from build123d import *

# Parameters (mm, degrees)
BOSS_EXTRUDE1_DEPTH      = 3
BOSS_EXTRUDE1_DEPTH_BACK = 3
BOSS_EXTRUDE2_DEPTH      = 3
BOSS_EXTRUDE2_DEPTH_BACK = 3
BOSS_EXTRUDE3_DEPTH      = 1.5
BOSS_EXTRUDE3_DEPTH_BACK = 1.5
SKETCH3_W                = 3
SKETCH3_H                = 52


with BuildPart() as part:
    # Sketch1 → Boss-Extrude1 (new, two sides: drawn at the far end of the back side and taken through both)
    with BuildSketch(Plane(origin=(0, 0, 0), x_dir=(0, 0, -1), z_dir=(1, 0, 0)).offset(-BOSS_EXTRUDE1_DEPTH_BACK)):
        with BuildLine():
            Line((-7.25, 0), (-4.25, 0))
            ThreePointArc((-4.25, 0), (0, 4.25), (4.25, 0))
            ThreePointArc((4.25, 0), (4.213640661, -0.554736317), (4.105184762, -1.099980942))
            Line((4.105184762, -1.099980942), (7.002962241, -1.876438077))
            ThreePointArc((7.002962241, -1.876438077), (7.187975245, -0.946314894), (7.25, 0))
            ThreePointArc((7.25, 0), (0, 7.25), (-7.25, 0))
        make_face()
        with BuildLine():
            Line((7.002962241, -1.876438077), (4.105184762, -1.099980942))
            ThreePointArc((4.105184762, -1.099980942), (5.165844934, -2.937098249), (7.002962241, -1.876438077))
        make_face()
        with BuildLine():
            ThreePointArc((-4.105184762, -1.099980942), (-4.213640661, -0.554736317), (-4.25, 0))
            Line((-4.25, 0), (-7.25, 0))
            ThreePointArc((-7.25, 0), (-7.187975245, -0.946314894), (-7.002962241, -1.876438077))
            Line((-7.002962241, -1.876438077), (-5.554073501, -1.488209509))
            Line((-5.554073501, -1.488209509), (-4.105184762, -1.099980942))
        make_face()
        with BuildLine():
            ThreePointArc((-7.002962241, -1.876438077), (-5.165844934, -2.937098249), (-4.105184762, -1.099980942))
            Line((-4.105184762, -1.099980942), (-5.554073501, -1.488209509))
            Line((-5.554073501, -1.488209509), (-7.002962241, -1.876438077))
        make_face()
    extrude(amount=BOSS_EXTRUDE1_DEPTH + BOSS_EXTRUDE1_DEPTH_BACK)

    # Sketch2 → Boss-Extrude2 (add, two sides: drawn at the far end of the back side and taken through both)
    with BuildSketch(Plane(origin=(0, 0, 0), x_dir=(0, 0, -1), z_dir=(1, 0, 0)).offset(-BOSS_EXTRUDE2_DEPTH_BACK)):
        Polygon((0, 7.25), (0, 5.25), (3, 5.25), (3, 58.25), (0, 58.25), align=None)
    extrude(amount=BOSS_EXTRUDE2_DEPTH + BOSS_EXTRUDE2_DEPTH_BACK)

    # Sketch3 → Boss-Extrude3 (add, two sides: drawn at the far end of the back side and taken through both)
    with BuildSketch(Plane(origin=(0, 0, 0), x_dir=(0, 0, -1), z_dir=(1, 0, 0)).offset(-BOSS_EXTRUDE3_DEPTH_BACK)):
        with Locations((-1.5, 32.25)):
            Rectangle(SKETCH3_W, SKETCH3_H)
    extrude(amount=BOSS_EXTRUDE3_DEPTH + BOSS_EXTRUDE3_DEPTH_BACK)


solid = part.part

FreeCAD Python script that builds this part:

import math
import FreeCAD as App
import Part
import Sketcher
from FreeCAD import Vector
Q = App.Units.Quantity

doc = App.newDocument("Part")
body = doc.addObject("PartDesign::Body", "Body")

sketch1 = body.newObject("Sketcher::SketchObject", "Sketch")
sketch1.AttachmentSupport = (doc.getObject("YZ_Plane"), [""])
sketch1.MapMode = "FlatFace"
sketch1.addGeometry([
    Part.ArcOfCircle(Part.Circle(Vector(0, 0, 0), Vector(0, 0, 1), 4.25), math.radians(-90), math.radians(90)),
    Part.ArcOfCircle(Part.Circle(Vector(0, 0, 0), Vector(0, 0, 1), 4.25), math.radians(-105), math.radians(-90)),
    Part.ArcOfCircle(Part.Circle(Vector(-1.48821, -5.554074, 0), Vector(0, 0, 1), 1.5), math.radians(75), math.radians(255)),
    Part.ArcOfCircle(Part.Circle(Vector(0, 0, 0), Vector(0, 0, 1), 7.25), math.radians(-105), math.radians(-90)),
    Part.ArcOfCircle(Part.Circle(Vector(0, 0, 0), Vector(0, 0, 1), 7.25), math.radians(-90), math.radians(90)),
    Part.ArcOfCircle(Part.Circle(Vector(0, 0, 0), Vector(0, 0, 1), 7.25), math.radians(90), math.radians(105)),
    Part.ArcOfCircle(Part.Circle(Vector(-1.48821, 5.554074, 0), Vector(0, 0, 1), 1.5), math.radians(105), math.radians(285)),
    Part.ArcOfCircle(Part.Circle(Vector(0, 0, 0), Vector(0, 0, 1), 4.25), math.radians(90), math.radians(105)),
], False)
sketch1.addConstraint([
    Sketcher.Constraint("Tangent", 0, 1, 1, 2),
    Sketcher.Constraint("Tangent", 1, 1, 2, 1),
    Sketcher.Constraint("Tangent", 2, 2, 3, 1),
    Sketcher.Constraint("Tangent", 3, 2, 4, 1),
    Sketcher.Constraint("Tangent", 4, 2, 5, 1),
    Sketcher.Constraint("Tangent", 5, 2, 6, 1),
    Sketcher.Constraint("Tangent", 6, 2, 7, 2),
    Sketcher.Constraint("Tangent", 7, 1, 0, 2),
    Sketcher.Constraint("Coincident", 0, 3, -1, 1),
    Sketcher.Constraint("Coincident", 3, 3, -1, 1),
    Sketcher.Constraint("Equal", 0, 1),
    Sketcher.Constraint("Equal", 3, 4),
    Sketcher.Constraint("Equal", 4, 5),
    Sketcher.Constraint("Equal", 2, 6),
    Sketcher.Constraint("PointOnObject", 0, 1, -2),
    Sketcher.Constraint("PointOnObject", 3, 2, -2),
    Sketcher.Constraint("PointOnObject", 4, 2, -2),
    Sketcher.Constraint("PointOnObject", 7, 1, -2),
    Sketcher.Constraint("Vertical", 2, 3, 6, 3),
    Sketcher.Constraint("Radius", 2, Q("1.5 mm")),
    Sketcher.Constraint("Radius", 0, Q("4.25 mm")),
    Sketcher.Constraint("DistanceX", 2, 3, -1, 1, Q("1.48821 mm")),
])
pad1 = body.newObject("PartDesign::Pad", "Pad")
pad1.Profile = sketch1
pad1.Type = "TwoLengths"
pad1.Length = 3
pad1.Length2 = 3

sketch2 = body.newObject("Sketcher::SketchObject", "Sketch001")
sketch2.AttachmentSupport = (doc.getObject("YZ_Plane"), [""])
sketch2.MapMode = "FlatFace"
sketch2.addGeometry([
    Part.LineSegment(Vector(5.25, 0, 0), Vector(5.25, -3, 0)),
    Part.LineSegment(Vector(5.25, -3, 0), Vector(58.25, -3, 0)),
    Part.LineSegment(Vector(58.25, -3, 0), Vector(58.25, 0, 0)),
    Part.LineSegment(Vector(58.25, 0, 0), Vector(5.25, 0, 0)),
], False)
sketch2.addConstraint([
    Sketcher.Constraint("Coincident", 0, 2, 1, 1),
    Sketcher.Constraint("Coincident", 1, 2, 2, 1),
    Sketcher.Constraint("Coincident", 2, 2, 3, 1),
    Sketcher.Constraint("Coincident", 3, 2, 0, 1),
    Sketcher.Constraint("Vertical", 0),
    Sketcher.Constraint("Horizontal", 1),
    Sketcher.Constraint("Vertical", 2),
    Sketcher.Constraint("Horizontal", 3),
    Sketcher.Constraint("PointOnObject", 2, 2, -1),
    Sketcher.Constraint("DistanceX", 1, 1, 1, 2, Q("53 mm")),
    Sketcher.Constraint("DistanceY", 0, 2, 0, 1, Q("3 mm")),
    Sketcher.Constraint("DistanceX", -1, 1, 0, 2, Q("5.25 mm")),
])
pad2 = body.newObject("PartDesign::Pad", "Pad001")
pad2.Profile = sketch2
pad2.Type = "TwoLengths"
pad2.Length = 3
pad2.Length2 = 3

sketch3 = body.newObject("Sketcher::SketchObject", "Sketch002")
sketch3.AttachmentSupport = (doc.getObject("YZ_Plane"), [""])
sketch3.MapMode = "FlatFace"
sketch3.addGeometry([
    Part.LineSegment(Vector(58.25, 3, 0), Vector(6.25, 3, 0)),
    Part.LineSegment(Vector(6.25, 3, 0), Vector(6.25, 0, 0)),
    Part.LineSegment(Vector(6.25, 0, 0), Vector(58.25, 0, 0)),
    Part.LineSegment(Vector(58.25, 0, 0), Vector(58.25, 3, 0)),
], False)
sketch3.addConstraint([
    Sketcher.Constraint("Coincident", 0, 2, 1, 1),
    Sketcher.Constraint("Coincident", 1, 2, 2, 1),
    Sketcher.Constraint("Coincident", 2, 2, 3, 1),
    Sketcher.Constraint("Coincident", 3, 2, 0, 1),
    Sketcher.Constraint("Horizontal", 0),
    Sketcher.Constraint("Vertical", 1),
    Sketcher.Constraint("Horizontal", 2),
    Sketcher.Constraint("Vertical", 3),
    Sketcher.Constraint("PointOnObject", 1, 2, -1),
    Sketcher.Constraint("DistanceX", 0, 2, 0, 1, Q("52 mm")),
    Sketcher.Constraint("DistanceY", 1, 2, 1, 1, Q("3 mm")),
    Sketcher.Constraint("DistanceX", -1, 1, 0, 2, Q("6.25 mm")),
])
pad3 = body.newObject("PartDesign::Pad", "Pad002")
pad3.Profile = sketch3
pad3.Type = "TwoLengths"
pad3.Length = 1.5
pad3.Length2 = 1.5

doc.recompute()
